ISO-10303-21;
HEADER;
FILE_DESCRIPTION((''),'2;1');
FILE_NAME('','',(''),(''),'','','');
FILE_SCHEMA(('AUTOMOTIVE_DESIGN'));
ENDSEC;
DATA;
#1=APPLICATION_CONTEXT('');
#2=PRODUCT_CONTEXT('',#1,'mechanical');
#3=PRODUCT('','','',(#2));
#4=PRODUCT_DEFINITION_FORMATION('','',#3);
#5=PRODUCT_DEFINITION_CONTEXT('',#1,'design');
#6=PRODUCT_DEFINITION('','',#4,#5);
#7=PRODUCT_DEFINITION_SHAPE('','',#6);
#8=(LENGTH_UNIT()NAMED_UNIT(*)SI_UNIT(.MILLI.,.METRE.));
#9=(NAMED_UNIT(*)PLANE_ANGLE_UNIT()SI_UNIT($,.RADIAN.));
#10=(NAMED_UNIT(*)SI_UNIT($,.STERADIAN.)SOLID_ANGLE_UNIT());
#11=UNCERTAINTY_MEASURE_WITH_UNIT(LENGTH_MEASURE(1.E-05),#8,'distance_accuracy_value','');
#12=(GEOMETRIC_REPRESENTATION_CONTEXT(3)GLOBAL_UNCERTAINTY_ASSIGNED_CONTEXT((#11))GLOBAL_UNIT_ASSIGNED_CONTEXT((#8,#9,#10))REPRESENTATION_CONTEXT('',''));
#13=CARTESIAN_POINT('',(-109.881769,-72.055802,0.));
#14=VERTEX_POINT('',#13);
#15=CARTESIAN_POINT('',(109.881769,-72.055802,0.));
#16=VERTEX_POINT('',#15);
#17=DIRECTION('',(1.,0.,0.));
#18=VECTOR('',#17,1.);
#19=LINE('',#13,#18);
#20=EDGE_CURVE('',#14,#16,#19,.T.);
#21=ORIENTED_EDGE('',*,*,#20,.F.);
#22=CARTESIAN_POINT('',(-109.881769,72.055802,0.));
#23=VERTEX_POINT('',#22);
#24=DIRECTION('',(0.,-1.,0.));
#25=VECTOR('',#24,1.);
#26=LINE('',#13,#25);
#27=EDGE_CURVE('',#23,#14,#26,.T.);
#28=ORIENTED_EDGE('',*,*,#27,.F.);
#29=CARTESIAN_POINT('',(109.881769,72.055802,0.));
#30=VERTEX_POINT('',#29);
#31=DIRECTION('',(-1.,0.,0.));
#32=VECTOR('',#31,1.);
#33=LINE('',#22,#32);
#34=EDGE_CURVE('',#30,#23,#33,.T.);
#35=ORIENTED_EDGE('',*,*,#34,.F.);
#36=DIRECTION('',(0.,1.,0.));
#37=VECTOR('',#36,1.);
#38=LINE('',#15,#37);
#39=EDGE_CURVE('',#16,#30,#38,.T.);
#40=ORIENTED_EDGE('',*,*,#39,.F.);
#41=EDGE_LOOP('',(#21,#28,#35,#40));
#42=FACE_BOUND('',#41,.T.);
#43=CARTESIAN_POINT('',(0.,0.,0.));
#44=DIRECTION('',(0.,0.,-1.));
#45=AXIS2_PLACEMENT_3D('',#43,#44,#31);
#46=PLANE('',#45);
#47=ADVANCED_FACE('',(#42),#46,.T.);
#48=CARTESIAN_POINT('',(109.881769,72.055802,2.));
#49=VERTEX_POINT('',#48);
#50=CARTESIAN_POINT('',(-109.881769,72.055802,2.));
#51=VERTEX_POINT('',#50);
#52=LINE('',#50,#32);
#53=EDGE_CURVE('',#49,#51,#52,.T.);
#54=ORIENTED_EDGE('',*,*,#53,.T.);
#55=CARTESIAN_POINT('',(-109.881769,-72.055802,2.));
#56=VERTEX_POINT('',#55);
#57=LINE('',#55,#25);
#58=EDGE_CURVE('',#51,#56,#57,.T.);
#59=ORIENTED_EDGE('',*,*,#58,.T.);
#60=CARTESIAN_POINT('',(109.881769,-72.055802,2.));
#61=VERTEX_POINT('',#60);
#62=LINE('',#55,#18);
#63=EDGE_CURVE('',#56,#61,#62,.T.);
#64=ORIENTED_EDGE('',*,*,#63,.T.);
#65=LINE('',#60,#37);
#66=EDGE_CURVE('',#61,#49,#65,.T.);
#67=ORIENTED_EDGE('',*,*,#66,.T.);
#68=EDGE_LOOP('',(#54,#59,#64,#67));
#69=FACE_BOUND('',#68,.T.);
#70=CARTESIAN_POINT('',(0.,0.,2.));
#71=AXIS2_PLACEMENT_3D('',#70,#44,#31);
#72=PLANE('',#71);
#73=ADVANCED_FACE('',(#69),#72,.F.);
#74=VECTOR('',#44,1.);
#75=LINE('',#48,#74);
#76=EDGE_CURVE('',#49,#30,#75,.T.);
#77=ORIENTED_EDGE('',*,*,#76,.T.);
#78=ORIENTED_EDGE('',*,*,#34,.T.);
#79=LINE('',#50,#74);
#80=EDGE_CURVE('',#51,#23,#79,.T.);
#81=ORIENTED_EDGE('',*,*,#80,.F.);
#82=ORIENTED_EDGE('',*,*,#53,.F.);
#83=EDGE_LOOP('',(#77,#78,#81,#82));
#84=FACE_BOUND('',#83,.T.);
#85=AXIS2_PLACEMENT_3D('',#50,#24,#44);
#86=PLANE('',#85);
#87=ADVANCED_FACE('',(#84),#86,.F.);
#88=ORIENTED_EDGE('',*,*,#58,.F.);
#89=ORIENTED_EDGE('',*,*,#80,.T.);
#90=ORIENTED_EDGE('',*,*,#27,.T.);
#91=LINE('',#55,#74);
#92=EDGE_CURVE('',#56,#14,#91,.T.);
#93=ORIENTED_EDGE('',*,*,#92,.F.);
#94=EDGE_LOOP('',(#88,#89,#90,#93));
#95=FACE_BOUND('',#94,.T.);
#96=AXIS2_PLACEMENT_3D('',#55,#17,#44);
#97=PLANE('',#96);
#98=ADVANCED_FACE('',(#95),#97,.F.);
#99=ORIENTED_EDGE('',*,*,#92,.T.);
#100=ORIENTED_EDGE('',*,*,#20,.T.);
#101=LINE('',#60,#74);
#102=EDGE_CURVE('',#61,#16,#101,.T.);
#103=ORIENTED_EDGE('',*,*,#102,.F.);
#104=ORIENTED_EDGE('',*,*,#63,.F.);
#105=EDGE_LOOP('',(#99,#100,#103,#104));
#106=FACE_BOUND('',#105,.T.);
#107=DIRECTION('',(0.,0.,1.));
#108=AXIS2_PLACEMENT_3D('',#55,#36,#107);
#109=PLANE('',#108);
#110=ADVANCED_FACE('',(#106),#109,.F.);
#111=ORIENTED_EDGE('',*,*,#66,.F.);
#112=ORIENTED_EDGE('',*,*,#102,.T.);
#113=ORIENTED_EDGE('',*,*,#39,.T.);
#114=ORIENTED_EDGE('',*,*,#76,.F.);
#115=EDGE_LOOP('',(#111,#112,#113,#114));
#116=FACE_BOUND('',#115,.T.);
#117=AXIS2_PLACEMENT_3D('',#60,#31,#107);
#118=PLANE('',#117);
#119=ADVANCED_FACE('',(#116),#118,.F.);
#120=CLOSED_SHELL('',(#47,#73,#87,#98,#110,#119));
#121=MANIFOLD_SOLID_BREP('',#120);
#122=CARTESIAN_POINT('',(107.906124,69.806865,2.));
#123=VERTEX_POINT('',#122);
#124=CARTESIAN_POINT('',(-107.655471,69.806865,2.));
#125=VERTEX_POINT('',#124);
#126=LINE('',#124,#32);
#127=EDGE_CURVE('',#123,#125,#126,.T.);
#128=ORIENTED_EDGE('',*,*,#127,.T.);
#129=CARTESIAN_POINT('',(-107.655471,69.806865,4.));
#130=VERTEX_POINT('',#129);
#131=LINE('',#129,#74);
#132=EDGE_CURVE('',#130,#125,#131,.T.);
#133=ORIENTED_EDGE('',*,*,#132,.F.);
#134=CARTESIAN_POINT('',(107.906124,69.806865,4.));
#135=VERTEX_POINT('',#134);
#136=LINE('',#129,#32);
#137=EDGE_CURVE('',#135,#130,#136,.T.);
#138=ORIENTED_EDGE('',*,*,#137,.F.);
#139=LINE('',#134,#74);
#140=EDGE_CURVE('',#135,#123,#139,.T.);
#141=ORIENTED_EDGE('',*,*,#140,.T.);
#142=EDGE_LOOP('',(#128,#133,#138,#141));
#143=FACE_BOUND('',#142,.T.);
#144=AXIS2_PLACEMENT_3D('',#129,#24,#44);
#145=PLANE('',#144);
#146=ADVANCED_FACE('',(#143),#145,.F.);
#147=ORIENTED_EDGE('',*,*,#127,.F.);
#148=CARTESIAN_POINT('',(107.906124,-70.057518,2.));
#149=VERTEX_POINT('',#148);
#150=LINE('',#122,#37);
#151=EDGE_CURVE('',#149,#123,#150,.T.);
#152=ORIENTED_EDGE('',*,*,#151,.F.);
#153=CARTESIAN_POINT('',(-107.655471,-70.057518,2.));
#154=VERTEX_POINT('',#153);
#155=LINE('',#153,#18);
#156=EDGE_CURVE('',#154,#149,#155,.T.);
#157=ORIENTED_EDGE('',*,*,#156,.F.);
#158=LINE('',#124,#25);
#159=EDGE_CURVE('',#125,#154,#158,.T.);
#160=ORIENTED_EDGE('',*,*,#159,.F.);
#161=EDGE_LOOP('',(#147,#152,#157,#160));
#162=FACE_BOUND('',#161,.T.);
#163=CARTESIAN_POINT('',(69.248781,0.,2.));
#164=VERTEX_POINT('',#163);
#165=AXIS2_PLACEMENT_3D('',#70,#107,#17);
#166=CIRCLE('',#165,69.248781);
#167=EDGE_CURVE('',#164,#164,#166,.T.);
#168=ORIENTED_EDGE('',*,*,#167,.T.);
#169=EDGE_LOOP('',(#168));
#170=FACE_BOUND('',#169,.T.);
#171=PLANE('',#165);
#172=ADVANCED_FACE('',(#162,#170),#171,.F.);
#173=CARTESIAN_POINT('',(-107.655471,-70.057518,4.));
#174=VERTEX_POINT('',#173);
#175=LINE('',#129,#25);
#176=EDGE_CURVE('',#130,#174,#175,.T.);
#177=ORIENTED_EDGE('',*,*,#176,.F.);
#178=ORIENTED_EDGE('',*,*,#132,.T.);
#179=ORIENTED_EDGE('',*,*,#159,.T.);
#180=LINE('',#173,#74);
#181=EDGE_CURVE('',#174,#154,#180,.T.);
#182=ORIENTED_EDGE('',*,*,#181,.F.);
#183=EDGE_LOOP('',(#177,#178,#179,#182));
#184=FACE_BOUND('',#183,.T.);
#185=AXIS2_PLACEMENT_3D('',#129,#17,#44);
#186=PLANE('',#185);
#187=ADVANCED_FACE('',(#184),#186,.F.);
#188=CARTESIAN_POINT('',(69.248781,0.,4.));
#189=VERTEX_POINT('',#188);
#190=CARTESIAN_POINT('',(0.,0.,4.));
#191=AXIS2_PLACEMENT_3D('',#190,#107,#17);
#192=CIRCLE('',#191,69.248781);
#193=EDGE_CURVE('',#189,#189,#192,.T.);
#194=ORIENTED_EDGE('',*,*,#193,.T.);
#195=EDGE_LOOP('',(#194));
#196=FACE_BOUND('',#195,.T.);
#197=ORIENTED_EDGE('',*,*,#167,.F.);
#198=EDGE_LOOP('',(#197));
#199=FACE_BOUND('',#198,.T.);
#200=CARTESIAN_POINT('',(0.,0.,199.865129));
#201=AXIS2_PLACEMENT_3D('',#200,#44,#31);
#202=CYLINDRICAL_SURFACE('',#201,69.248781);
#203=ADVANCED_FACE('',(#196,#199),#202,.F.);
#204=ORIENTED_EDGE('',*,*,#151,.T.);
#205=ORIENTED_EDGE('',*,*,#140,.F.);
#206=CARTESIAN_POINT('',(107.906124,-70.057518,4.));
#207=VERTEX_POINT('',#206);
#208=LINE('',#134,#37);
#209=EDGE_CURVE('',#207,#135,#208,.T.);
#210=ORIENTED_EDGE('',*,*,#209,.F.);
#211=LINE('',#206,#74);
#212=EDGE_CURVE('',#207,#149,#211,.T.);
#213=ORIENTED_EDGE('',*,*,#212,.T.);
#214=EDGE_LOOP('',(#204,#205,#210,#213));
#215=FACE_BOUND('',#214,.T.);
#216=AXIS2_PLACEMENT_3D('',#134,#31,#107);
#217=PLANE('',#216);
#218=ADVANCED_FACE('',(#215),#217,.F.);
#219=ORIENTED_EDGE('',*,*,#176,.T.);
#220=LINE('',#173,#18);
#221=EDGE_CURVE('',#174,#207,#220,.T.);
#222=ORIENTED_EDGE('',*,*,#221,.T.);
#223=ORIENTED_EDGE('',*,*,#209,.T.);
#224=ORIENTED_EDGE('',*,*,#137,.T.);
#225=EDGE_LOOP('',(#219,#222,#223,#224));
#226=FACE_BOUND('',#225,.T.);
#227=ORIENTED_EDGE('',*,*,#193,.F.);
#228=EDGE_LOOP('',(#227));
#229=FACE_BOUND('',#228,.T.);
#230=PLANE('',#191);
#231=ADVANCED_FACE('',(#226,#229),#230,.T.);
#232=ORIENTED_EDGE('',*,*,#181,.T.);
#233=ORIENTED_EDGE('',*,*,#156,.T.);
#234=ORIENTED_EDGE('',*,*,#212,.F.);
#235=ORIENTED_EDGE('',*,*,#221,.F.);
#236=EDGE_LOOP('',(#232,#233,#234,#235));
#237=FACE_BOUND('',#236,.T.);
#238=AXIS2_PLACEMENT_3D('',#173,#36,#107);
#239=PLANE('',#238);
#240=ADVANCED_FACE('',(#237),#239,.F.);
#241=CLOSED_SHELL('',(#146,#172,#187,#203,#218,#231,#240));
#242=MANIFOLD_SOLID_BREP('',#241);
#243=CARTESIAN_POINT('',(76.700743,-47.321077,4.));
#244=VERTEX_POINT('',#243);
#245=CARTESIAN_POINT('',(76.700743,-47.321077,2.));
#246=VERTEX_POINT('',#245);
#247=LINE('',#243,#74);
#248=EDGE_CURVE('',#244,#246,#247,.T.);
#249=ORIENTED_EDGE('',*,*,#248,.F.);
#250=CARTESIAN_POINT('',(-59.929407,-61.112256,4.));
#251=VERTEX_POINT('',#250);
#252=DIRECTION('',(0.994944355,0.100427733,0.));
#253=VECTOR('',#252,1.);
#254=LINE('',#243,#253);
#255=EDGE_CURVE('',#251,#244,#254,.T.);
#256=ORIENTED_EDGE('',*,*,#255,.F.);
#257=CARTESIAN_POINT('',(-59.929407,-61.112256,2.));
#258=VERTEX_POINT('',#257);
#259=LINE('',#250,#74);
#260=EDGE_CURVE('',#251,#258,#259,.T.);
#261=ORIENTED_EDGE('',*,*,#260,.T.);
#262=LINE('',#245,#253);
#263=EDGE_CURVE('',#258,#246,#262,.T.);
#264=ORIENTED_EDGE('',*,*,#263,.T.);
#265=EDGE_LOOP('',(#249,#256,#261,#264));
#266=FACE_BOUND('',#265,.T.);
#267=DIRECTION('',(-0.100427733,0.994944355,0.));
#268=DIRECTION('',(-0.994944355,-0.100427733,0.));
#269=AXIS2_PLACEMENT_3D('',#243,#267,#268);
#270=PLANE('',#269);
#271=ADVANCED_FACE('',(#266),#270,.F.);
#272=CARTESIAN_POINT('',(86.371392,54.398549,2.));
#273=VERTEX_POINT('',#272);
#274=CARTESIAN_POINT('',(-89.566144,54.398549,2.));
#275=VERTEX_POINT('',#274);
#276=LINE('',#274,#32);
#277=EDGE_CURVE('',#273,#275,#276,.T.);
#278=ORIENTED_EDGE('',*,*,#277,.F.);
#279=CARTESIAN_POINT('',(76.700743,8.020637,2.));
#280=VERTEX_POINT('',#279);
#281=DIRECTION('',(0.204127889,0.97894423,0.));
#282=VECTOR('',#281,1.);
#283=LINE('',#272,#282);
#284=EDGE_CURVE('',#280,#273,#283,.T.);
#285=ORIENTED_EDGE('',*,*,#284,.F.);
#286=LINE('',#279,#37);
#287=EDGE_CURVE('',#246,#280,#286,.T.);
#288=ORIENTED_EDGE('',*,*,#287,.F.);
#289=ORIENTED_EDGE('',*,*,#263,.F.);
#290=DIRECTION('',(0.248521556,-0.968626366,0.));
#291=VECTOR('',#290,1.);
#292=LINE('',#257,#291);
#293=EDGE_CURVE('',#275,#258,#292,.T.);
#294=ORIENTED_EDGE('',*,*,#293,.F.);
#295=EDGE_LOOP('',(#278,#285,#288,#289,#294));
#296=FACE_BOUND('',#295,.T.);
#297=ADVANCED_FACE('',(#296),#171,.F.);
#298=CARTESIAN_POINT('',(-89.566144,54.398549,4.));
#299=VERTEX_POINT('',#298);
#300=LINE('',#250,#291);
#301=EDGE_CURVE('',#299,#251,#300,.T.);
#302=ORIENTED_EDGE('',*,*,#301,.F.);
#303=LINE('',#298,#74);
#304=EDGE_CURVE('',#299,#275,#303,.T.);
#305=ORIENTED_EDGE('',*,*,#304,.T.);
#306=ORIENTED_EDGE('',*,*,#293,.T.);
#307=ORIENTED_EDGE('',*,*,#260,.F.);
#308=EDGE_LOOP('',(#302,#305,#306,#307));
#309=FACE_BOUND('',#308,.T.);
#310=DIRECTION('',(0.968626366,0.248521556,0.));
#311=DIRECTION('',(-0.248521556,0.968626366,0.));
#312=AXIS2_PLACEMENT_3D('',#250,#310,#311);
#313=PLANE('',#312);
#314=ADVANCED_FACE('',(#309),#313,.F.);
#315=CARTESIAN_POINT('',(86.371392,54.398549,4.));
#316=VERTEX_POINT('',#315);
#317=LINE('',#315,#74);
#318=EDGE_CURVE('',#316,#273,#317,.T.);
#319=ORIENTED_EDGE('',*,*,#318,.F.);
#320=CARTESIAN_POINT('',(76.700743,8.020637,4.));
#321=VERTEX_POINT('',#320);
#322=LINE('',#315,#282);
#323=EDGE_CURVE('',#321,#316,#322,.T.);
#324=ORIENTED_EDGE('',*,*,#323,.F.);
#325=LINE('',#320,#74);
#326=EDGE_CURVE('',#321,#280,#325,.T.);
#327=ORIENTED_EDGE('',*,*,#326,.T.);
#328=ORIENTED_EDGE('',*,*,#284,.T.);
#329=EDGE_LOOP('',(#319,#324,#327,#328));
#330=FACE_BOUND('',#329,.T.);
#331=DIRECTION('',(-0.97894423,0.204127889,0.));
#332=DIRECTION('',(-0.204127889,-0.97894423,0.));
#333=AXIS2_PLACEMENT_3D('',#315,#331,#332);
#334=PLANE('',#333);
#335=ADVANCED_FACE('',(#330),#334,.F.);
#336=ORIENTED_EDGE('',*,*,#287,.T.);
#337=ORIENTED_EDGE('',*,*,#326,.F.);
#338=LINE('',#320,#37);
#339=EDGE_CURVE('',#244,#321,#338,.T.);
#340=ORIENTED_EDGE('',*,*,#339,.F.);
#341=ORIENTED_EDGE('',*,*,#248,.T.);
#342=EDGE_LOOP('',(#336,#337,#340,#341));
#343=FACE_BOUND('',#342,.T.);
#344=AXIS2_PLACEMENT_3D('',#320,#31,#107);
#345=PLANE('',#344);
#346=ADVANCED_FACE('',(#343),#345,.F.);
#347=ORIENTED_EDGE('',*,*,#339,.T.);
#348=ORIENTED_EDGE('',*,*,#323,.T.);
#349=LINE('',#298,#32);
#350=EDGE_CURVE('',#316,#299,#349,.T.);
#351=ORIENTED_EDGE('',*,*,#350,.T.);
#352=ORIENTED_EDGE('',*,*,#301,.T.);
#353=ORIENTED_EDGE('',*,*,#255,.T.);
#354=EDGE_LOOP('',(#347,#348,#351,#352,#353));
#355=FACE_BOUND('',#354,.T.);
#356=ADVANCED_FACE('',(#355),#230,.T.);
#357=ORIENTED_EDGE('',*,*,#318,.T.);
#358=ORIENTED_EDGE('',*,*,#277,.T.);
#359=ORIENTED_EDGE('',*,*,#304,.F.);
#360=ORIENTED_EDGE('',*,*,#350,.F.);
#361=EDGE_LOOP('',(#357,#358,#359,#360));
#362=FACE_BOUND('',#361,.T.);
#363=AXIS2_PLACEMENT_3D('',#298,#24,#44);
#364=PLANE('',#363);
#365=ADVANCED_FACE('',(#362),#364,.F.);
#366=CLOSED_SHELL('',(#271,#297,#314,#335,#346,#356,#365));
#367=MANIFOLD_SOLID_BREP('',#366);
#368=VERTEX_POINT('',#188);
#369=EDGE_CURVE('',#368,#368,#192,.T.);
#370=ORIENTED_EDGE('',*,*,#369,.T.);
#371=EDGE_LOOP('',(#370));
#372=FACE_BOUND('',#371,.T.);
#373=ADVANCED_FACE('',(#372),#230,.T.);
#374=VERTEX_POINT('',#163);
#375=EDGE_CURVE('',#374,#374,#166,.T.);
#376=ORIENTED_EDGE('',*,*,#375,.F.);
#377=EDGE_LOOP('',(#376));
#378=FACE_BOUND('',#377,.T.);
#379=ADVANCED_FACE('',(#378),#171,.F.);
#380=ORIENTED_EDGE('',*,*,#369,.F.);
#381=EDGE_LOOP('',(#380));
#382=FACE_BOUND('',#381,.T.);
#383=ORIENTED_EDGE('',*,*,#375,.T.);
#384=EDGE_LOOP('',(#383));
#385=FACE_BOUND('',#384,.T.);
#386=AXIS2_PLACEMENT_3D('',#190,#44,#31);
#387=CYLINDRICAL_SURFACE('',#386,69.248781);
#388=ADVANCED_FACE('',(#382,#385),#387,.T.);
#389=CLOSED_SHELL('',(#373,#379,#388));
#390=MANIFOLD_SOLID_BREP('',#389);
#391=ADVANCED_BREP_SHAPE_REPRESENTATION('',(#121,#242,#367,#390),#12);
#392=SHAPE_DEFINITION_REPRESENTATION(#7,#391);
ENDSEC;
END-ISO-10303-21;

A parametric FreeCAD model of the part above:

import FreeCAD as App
import Part
import Sketcher
from FreeCAD import Vector


def add_polygon(sketch, points):
    """Adds a closed chain of lines whose ends are joined by coincident constraints."""
    first, n = sketch.GeometryCount, len(points)
    for a, b in zip(points, points[1:] + points[:1]):
        sketch.addGeometry(Part.LineSegment(App.Vector(*a, 0), App.Vector(*b, 0)), False)
    for i in range(n):
        sketch.addConstraint(Sketcher.Constraint("Coincident", first + i, 2, first + (i + 1) % n, 1))

doc = App.newDocument("Part")
body = doc.addObject("PartDesign::Body", "Body")

sketch1 = body.newObject("Sketcher::SketchObject", "Sketch")
sketch1.AttachmentSupport = (doc.getObject("XY_Plane"), [""])
sketch1.MapMode = "FlatFace"
add_polygon(sketch1, [(-110, 72), (-110, -72), (110, -72), (110, 72)])
sketch1.addConstraint([
    Sketcher.Constraint("Vertical", 0),
    Sketcher.Constraint("Horizontal", 1),
    Sketcher.Constraint("Vertical", 2),
    Sketcher.Constraint("Horizontal", 3),
    Sketcher.Constraint("Symmetric", 0, 2, 2, 2, -1, 1),
    Sketcher.Constraint("DistanceX", 1, 1, 1, 2, 219.763537),
    Sketcher.Constraint("DistanceY", 0, 2, 0, 1, 144.111604),
])
pad1 = body.newObject("PartDesign::Pad", "Pad")
pad1.Profile = sketch1
pad1.Length = 2
body2 = doc.addObject("PartDesign::Body", "Body001")

sketch2 = body2.newObject("Sketcher::SketchObject", "Sketch001")
sketch2.AttachmentSupport = (doc.getObject("XY_Plane001"), [""])
sketch2.MapMode = "FlatFace"
sketch2.AttachmentOffset = App.Placement(Vector(0, 0, 2), App.Rotation())
add_polygon(sketch2, [(86, 54), (-90, 54), (-60, -61), (77, -47), (77, 8)])
sketch2.addConstraint([
    Sketcher.Constraint("Horizontal", 0),
    Sketcher.Constraint("Vertical", 3),
    Sketcher.Constraint("DistanceX", 1, 2, 4, 2, 146.300799),
    Sketcher.Constraint("Distance", 1, 119.25218),
    Sketcher.Constraint("Distance", 4, 47.375439),
    Sketcher.Constraint("DistanceX", 0, 2, 0, 1, 175.937536),
    Sketcher.Constraint("DistanceY", 3, 1, 3, 2, 55.341713),
    Sketcher.Constraint("DistanceY", -1, 1, 0, 2, 54.398549),
    Sketcher.Constraint("DistanceX", -1, 1, 4, 2, 86.371392),
    Sketcher.Constraint("DistanceX", 1, 2, 2, 2, 136.63015),
])
pad2 = body2.newObject("PartDesign::Pad", "Pad001")
pad2.Profile = sketch2
pad2.Length = 2
body3 = doc.addObject("PartDesign::Body", "Body002")

sketch3 = body3.newObject("Sketcher::SketchObject", "Sketch002")
sketch3.AttachmentSupport = (doc.getObject("XY_Plane002"), [""])
sketch3.MapMode = "FlatFace"
sketch3.AttachmentOffset = App.Placement(Vector(0, 0, 2), App.Rotation())
add_polygon(sketch3, [(-108, 70), (-108, -70), (108, -70), (108, 70)])
sketch3.addConstraint([
    Sketcher.Constraint("Vertical", 0),
    Sketcher.Constraint("Horizontal", 1),
    Sketcher.Constraint("Vertical", 2),
    Sketcher.Constraint("Horizontal", 3),
    Sketcher.Constraint("DistanceX", 1, 1, 1, 2, 215.561595),
    Sketcher.Constraint("DistanceY", 0, 2, 0, 1, 139.864384),
    Sketcher.Constraint("DistanceX", 0, 2, -1, 1, 107.655471),
    Sketcher.Constraint("DistanceY", 0, 2, -1, 1, 70.057518),
])
pad3 = body3.newObject("PartDesign::Pad", "Pad002")
pad3.Profile = sketch3
pad3.Length = 2

sketch4 = body3.newObject("Sketcher::SketchObject", "Sketch003")
sketch4.AttachmentSupport = (doc.getObject("XY_Plane002"), [""])
sketch4.MapMode = "FlatFace"
sketch4.AttachmentOffset = App.Placement(Vector(0, 0, 2), App.Rotation())
sketch4.addGeometry(Part.Circle(Vector(0, 0, 0), Vector(0, 0, 1), 69), False)
sketch4.addConstraint([
    Sketcher.Constraint("Coincident", 0, 3, -1, 1),
    Sketcher.Constraint("Diameter", 0, 138.497561),
])
pocket1 = body3.newObject("PartDesign::Pocket", "Pocket")
pocket1.Profile = sketch4
pocket1.Length = 2
pocket1.Reversed = True
body4 = doc.addObject("PartDesign::Body", "Body003")

sketch5 = body4.newObject("Sketcher::SketchObject", "Sketch004")
sketch5.AttachmentSupport = (doc.getObject("XY_Plane003"), [""])
sketch5.MapMode = "FlatFace"
sketch5.AttachmentOffset = App.Placement(Vector(0, 0, 2), App.Rotation())
sketch5.addGeometry(Part.Circle(Vector(0, 0, 0), Vector(0, 0, 1), 69), False)
sketch5.addConstraint([
    Sketcher.Constraint("Coincident", 0, 3, -1, 1),
    Sketcher.Constraint("Diameter", 0, 138.497561),
])
pad4 = body4.newObject("PartDesign::Pad", "Pad003")
pad4.Profile = sketch5
pad4.Length = 2

doc.recompute()
